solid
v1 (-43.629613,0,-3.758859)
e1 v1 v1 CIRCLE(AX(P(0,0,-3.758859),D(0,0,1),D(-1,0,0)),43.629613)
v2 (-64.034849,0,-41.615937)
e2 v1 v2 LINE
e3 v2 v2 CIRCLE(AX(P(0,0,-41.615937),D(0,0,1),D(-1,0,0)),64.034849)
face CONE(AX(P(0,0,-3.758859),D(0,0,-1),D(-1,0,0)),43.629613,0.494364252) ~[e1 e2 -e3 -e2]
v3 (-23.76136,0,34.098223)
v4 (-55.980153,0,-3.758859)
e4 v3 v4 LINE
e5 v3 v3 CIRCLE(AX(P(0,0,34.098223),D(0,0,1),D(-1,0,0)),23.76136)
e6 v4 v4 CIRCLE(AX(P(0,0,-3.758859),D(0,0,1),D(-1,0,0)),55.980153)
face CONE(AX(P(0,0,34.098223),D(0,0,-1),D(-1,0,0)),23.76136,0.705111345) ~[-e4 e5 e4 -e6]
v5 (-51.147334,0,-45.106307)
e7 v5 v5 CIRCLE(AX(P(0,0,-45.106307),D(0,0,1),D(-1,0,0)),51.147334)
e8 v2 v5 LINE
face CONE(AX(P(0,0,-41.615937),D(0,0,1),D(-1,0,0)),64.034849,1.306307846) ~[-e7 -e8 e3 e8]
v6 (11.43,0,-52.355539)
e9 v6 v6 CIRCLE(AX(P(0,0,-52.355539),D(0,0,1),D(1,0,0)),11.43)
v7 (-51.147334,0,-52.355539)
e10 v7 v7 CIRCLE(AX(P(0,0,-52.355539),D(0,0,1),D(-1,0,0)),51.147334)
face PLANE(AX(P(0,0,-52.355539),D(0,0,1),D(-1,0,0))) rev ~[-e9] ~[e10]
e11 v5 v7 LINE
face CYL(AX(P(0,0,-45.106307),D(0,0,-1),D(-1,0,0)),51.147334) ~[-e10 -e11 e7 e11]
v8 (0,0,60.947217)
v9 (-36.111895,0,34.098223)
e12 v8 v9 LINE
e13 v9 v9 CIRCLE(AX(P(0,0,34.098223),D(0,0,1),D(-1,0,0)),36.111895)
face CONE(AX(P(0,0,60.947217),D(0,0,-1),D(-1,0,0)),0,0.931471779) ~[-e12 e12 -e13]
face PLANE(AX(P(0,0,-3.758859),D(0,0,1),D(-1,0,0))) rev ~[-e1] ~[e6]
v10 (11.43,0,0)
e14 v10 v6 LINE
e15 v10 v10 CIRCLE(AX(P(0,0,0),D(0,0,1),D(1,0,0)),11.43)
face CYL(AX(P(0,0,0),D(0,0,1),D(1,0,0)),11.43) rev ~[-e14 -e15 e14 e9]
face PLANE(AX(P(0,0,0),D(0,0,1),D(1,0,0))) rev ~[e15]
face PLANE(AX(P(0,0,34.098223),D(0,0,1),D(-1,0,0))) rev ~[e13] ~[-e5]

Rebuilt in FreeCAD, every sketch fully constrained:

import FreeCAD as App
import Part
import Sketcher
Q = App.Units.Quantity

doc = App.newDocument("Part")
body = doc.addObject("PartDesign::Body", "Body")

# Sketch on XZ plane
sketch1 = body.newObject("Sketcher::SketchObject", "Sketch")
sketch1.AttachmentSupport = (doc.getObject("XZ_Plane"), [""])
sketch1.MapMode = "FlatFace"
sketch1.addGeometry([
    Part.LineSegment(App.Vector(0, -52, 0), App.Vector(0, 61, 0)),  # 0
    Part.LineSegment(App.Vector(0, 61, 0), App.Vector(-36, 34, 0)),  # 1
    Part.LineSegment(App.Vector(-36, 34, 0), App.Vector(-24, 34, 0)),  # 2
    Part.LineSegment(App.Vector(-24, 34, 0), App.Vector(-56, -4, 0)),  # 3
    Part.LineSegment(App.Vector(-56, -4, 0), App.Vector(-44, -4, 0)),  # 4
    Part.LineSegment(App.Vector(-44, -4, 0), App.Vector(-64, -42, 0)),  # 5
    Part.LineSegment(App.Vector(-64, -42, 0), App.Vector(-51, -45, 0)),  # 6
    Part.LineSegment(App.Vector(-51, -45, 0), App.Vector(-51, -52, 0)),  # 7
    Part.LineSegment(App.Vector(-51, -52, 0), App.Vector(0, -52, 0)),  # 8
], False)
sketch1.addConstraint([
    Sketcher.Constraint("Coincident", 0, 2, 1, 1),
    Sketcher.Constraint("Coincident", 1, 2, 2, 1),
    Sketcher.Constraint("Coincident", 2, 2, 3, 1),
    Sketcher.Constraint("Coincident", 3, 2, 4, 1),
    Sketcher.Constraint("Coincident", 4, 2, 5, 1),
    Sketcher.Constraint("Coincident", 5, 2, 6, 1),
    Sketcher.Constraint("Coincident", 6, 2, 7, 1),
    Sketcher.Constraint("Coincident", 7, 2, 8, 1),
    Sketcher.Constraint("Coincident", 8, 2, 0, 1),
    Sketcher.Constraint("Vertical", 0),
    Sketcher.Constraint("Horizontal", 2),
    Sketcher.Constraint("Horizontal", 4),
    Sketcher.Constraint("Vertical", 7),
    Sketcher.Constraint("Horizontal", 8),
    Sketcher.Constraint("PointOnObject", 0, 2, -2),
    Sketcher.Constraint("DistanceX", 4, 1, 4, 2, 12.35054),
    Sketcher.Constraint("DistanceY", 7, 2, 7, 1, 7.249232),
    Sketcher.Constraint("DistanceY", 7, 2, 5, 2, 10.739602),
    Sketcher.Constraint("Distance", 3, 49.711259),
    Sketcher.Constraint("DistanceX", 2, 1, 2, 2, 12.350535),
    Sketcher.Constraint("DistanceX", 8, 1, 8, 2, 51.147334),
    Sketcher.Constraint("DistanceY", 0, 1, 0, 2, 113.302756),
    Sketcher.Constraint("DistanceX", 2, 2, -1, 1, 23.76136),
    Sketcher.Constraint("DistanceY", 3, 2, -1, 1, 3.758859),
    Sketcher.Constraint("DistanceX", 5, 2, -1, 1, 64.034849),
    Sketcher.Constraint("DistanceY", 7, 2, -1, 1, 52.355539),
    Sketcher.Constraint("DistanceX", 3, 2, 1, 2, 19.868258),
])
revolution = body.newObject("PartDesign::Revolution", "Revolution")
revolution.Profile = sketch1
revolution.ReferenceAxis = (sketch1, ["V_Axis"])
revolution.Angle = 360

# Sketch on XY plane
sketch2 = body.newObject("Sketcher::SketchObject", "Sketch001")
sketch2.AttachmentSupport = (doc.getObject("XY_Plane"), [""])
sketch2.MapMode = "FlatFace"
sketch2.addGeometry(Part.Circle(App.Vector(0, 0, 0), App.Vector(0, 0, 1), 11), False)
sketch2.addConstraint([
    Sketcher.Constraint("Coincident", 0, 3, -1, 1),
    Sketcher.Constraint("Diameter", 0, Q("0.9 in")),
])
pocket1 = body.newObject("PartDesign::Pocket", "Pocket")
pocket1.Profile = sketch2
pocket1.Length = Q("4.84 in")

doc.recompute()
